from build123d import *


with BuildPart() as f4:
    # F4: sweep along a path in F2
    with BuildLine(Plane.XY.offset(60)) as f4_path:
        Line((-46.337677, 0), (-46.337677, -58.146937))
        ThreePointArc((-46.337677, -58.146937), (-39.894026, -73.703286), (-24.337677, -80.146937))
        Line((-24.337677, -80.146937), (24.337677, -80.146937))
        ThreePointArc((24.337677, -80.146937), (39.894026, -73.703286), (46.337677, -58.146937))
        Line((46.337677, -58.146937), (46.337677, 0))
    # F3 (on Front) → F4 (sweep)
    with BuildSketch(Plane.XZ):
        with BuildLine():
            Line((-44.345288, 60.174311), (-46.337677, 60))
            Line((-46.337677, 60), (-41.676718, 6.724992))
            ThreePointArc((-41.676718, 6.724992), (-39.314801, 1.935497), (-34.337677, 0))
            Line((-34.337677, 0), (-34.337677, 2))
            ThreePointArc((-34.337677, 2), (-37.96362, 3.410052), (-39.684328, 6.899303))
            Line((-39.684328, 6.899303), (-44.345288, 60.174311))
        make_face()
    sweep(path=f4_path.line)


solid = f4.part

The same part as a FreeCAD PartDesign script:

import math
import FreeCAD as App
import Part
import Sketcher

doc = App.newDocument("Part")
body = doc.addObject("PartDesign::Body", "Body")

# Sketch on XZ plane
sketch1 = doc.addObject("Sketcher::SketchObject", "Sketch")
body.addObject(sketch1)
sketch1.AttachmentSupport = (doc.XZ_Plane, [""])
sketch1.MapMode = "FlatFace"
sketch1.addGeometry([
    Part.LineSegment(App.Vector(-44.345288, 60.174311, 0), App.Vector(-46.337677, 60, 0)),  # 0
    Part.LineSegment(App.Vector(-46.337677, 60, 0), App.Vector(-41.676718, 6.724992, 0)),  # 1
    Part.ArcOfCircle(Part.Circle(App.Vector(-34.337679, 7.367073, 0), App.Vector(0, 0, 1), 7.367073), math.radians(-175.000012), math.radians(-89.999988)),  # 2
    Part.LineSegment(App.Vector(-34.337677, 0, 0), App.Vector(-34.337677, 2, 0)),  # 3
    Part.ArcOfCircle(Part.Circle(App.Vector(-34.337677, 7.367074, 0), App.Vector(0, 0, 1), 5.367074), math.radians(-175.000004), math.radians(-89.999996)),  # 4
    Part.LineSegment(App.Vector(-39.684328, 6.899303, 0), App.Vector(-44.345288, 60.174311, 0)),  # 5
], False)
sketch1.addConstraint([
    Sketcher.Constraint("Coincident", 0, 2, 1, 1),
    Sketcher.Constraint("Coincident", 1, 2, 2, 1),
    Sketcher.Constraint("Coincident", 2, 2, 3, 1),
    Sketcher.Constraint("Coincident", 3, 2, 4, 2),
    Sketcher.Constraint("Coincident", 4, 1, 5, 1),
    Sketcher.Constraint("Coincident", 5, 2, 0, 1),
    Sketcher.Constraint("Vertical", 3),
    Sketcher.Constraint("Coincident", 4, 3, 2, 3),
    Sketcher.Constraint("PointOnObject", 2, 2, -1),
    Sketcher.Constraint("DistanceY", 3, 1, 3, 2, 2.0),
    Sketcher.Constraint("Distance", 0, 2.0),
    Sketcher.Constraint("DistanceY", -1, 1, 0, 2, 60.0),
    Sketcher.Constraint("DistanceX", 0, 2, 4, 3, 12.0),
    Sketcher.Constraint("DistanceX", 0, 2, 2, 2, 12.0),
    Sketcher.Constraint("Radius", 2, 7.367073),
    Sketcher.Constraint("Distance", 1, 53.47851),
    Sketcher.Constraint("Distance", 5, 53.47851),
    Sketcher.Constraint("DistanceX", 2, 3, -1, 1, 34.337679),
    Sketcher.Constraint("DistanceX", 4, 1, -1, 1, 39.684328),
])

# Sketch on XY plane
sketch2 = doc.addObject("Sketcher::SketchObject", "Sketch001")
body.addObject(sketch2)
sketch2.AttachmentSupport = (doc.XY_Plane, [""])
sketch2.MapMode = "FlatFace"
sketch2.AttachmentOffset = App.Placement(App.Vector(0, 0, 60), App.Rotation())
sketch2.addGeometry([
    Part.LineSegment(App.Vector(-46.337677, 0, 0), App.Vector(-46.337677, -58.146937, 0)),  # 0
    Part.ArcOfCircle(Part.Circle(App.Vector(-24.337676, -58.146936, 0), App.Vector(0, 0, 1), 22.000001), math.radians(-179.999998), math.radians(-90.000002)),  # 1
    Part.LineSegment(App.Vector(-24.337677, -80.146937, 0), App.Vector(24.337677, -80.146937, 0)),  # 2
    Part.ArcOfCircle(Part.Circle(App.Vector(24.337676, -58.146936, 0), App.Vector(0, 0, 1), 22.000001), math.radians(-89.999998), math.radians(-0.000002)),  # 3
    Part.LineSegment(App.Vector(46.337677, -58.146937, 0), App.Vector(46.337677, 0, 0)),  # 4
], False)
sketch2.addConstraint([
    Sketcher.Constraint("Tangent", 0, 2, 1, 1),
    Sketcher.Constraint("Tangent", 1, 2, 2, 1),
    Sketcher.Constraint("Tangent", 2, 2, 3, 1),
    Sketcher.Constraint("Tangent", 3, 2, 4, 1),
    Sketcher.Constraint("Vertical", 0),
    Sketcher.Constraint("Horizontal", 2),
    Sketcher.Constraint("Vertical", 4),
    Sketcher.Constraint("Equal", 1, 3),
    Sketcher.Constraint("Symmetric", 0, 1, 4, 2, -1, 1),
    Sketcher.Constraint("PointOnObject", 0, 1, -1),
    Sketcher.Constraint("Radius", 1, 22.000001),
    Sketcher.Constraint("DistanceX", 2, 1, 2, 2, 48.675354),
    Sketcher.Constraint("DistanceY", 0, 2, 0, 1, 58.146937),
])
doc.recompute()

additivepipe = doc.addObject("PartDesign::AdditivePipe", "AdditivePipe")
body.addObject(additivepipe)
additivepipe.Profile = sketch1
additivepipe.Spine = (sketch2, ["Edge1", "Edge2", "Edge3", "Edge4", "Edge5"])

doc.recompute()
